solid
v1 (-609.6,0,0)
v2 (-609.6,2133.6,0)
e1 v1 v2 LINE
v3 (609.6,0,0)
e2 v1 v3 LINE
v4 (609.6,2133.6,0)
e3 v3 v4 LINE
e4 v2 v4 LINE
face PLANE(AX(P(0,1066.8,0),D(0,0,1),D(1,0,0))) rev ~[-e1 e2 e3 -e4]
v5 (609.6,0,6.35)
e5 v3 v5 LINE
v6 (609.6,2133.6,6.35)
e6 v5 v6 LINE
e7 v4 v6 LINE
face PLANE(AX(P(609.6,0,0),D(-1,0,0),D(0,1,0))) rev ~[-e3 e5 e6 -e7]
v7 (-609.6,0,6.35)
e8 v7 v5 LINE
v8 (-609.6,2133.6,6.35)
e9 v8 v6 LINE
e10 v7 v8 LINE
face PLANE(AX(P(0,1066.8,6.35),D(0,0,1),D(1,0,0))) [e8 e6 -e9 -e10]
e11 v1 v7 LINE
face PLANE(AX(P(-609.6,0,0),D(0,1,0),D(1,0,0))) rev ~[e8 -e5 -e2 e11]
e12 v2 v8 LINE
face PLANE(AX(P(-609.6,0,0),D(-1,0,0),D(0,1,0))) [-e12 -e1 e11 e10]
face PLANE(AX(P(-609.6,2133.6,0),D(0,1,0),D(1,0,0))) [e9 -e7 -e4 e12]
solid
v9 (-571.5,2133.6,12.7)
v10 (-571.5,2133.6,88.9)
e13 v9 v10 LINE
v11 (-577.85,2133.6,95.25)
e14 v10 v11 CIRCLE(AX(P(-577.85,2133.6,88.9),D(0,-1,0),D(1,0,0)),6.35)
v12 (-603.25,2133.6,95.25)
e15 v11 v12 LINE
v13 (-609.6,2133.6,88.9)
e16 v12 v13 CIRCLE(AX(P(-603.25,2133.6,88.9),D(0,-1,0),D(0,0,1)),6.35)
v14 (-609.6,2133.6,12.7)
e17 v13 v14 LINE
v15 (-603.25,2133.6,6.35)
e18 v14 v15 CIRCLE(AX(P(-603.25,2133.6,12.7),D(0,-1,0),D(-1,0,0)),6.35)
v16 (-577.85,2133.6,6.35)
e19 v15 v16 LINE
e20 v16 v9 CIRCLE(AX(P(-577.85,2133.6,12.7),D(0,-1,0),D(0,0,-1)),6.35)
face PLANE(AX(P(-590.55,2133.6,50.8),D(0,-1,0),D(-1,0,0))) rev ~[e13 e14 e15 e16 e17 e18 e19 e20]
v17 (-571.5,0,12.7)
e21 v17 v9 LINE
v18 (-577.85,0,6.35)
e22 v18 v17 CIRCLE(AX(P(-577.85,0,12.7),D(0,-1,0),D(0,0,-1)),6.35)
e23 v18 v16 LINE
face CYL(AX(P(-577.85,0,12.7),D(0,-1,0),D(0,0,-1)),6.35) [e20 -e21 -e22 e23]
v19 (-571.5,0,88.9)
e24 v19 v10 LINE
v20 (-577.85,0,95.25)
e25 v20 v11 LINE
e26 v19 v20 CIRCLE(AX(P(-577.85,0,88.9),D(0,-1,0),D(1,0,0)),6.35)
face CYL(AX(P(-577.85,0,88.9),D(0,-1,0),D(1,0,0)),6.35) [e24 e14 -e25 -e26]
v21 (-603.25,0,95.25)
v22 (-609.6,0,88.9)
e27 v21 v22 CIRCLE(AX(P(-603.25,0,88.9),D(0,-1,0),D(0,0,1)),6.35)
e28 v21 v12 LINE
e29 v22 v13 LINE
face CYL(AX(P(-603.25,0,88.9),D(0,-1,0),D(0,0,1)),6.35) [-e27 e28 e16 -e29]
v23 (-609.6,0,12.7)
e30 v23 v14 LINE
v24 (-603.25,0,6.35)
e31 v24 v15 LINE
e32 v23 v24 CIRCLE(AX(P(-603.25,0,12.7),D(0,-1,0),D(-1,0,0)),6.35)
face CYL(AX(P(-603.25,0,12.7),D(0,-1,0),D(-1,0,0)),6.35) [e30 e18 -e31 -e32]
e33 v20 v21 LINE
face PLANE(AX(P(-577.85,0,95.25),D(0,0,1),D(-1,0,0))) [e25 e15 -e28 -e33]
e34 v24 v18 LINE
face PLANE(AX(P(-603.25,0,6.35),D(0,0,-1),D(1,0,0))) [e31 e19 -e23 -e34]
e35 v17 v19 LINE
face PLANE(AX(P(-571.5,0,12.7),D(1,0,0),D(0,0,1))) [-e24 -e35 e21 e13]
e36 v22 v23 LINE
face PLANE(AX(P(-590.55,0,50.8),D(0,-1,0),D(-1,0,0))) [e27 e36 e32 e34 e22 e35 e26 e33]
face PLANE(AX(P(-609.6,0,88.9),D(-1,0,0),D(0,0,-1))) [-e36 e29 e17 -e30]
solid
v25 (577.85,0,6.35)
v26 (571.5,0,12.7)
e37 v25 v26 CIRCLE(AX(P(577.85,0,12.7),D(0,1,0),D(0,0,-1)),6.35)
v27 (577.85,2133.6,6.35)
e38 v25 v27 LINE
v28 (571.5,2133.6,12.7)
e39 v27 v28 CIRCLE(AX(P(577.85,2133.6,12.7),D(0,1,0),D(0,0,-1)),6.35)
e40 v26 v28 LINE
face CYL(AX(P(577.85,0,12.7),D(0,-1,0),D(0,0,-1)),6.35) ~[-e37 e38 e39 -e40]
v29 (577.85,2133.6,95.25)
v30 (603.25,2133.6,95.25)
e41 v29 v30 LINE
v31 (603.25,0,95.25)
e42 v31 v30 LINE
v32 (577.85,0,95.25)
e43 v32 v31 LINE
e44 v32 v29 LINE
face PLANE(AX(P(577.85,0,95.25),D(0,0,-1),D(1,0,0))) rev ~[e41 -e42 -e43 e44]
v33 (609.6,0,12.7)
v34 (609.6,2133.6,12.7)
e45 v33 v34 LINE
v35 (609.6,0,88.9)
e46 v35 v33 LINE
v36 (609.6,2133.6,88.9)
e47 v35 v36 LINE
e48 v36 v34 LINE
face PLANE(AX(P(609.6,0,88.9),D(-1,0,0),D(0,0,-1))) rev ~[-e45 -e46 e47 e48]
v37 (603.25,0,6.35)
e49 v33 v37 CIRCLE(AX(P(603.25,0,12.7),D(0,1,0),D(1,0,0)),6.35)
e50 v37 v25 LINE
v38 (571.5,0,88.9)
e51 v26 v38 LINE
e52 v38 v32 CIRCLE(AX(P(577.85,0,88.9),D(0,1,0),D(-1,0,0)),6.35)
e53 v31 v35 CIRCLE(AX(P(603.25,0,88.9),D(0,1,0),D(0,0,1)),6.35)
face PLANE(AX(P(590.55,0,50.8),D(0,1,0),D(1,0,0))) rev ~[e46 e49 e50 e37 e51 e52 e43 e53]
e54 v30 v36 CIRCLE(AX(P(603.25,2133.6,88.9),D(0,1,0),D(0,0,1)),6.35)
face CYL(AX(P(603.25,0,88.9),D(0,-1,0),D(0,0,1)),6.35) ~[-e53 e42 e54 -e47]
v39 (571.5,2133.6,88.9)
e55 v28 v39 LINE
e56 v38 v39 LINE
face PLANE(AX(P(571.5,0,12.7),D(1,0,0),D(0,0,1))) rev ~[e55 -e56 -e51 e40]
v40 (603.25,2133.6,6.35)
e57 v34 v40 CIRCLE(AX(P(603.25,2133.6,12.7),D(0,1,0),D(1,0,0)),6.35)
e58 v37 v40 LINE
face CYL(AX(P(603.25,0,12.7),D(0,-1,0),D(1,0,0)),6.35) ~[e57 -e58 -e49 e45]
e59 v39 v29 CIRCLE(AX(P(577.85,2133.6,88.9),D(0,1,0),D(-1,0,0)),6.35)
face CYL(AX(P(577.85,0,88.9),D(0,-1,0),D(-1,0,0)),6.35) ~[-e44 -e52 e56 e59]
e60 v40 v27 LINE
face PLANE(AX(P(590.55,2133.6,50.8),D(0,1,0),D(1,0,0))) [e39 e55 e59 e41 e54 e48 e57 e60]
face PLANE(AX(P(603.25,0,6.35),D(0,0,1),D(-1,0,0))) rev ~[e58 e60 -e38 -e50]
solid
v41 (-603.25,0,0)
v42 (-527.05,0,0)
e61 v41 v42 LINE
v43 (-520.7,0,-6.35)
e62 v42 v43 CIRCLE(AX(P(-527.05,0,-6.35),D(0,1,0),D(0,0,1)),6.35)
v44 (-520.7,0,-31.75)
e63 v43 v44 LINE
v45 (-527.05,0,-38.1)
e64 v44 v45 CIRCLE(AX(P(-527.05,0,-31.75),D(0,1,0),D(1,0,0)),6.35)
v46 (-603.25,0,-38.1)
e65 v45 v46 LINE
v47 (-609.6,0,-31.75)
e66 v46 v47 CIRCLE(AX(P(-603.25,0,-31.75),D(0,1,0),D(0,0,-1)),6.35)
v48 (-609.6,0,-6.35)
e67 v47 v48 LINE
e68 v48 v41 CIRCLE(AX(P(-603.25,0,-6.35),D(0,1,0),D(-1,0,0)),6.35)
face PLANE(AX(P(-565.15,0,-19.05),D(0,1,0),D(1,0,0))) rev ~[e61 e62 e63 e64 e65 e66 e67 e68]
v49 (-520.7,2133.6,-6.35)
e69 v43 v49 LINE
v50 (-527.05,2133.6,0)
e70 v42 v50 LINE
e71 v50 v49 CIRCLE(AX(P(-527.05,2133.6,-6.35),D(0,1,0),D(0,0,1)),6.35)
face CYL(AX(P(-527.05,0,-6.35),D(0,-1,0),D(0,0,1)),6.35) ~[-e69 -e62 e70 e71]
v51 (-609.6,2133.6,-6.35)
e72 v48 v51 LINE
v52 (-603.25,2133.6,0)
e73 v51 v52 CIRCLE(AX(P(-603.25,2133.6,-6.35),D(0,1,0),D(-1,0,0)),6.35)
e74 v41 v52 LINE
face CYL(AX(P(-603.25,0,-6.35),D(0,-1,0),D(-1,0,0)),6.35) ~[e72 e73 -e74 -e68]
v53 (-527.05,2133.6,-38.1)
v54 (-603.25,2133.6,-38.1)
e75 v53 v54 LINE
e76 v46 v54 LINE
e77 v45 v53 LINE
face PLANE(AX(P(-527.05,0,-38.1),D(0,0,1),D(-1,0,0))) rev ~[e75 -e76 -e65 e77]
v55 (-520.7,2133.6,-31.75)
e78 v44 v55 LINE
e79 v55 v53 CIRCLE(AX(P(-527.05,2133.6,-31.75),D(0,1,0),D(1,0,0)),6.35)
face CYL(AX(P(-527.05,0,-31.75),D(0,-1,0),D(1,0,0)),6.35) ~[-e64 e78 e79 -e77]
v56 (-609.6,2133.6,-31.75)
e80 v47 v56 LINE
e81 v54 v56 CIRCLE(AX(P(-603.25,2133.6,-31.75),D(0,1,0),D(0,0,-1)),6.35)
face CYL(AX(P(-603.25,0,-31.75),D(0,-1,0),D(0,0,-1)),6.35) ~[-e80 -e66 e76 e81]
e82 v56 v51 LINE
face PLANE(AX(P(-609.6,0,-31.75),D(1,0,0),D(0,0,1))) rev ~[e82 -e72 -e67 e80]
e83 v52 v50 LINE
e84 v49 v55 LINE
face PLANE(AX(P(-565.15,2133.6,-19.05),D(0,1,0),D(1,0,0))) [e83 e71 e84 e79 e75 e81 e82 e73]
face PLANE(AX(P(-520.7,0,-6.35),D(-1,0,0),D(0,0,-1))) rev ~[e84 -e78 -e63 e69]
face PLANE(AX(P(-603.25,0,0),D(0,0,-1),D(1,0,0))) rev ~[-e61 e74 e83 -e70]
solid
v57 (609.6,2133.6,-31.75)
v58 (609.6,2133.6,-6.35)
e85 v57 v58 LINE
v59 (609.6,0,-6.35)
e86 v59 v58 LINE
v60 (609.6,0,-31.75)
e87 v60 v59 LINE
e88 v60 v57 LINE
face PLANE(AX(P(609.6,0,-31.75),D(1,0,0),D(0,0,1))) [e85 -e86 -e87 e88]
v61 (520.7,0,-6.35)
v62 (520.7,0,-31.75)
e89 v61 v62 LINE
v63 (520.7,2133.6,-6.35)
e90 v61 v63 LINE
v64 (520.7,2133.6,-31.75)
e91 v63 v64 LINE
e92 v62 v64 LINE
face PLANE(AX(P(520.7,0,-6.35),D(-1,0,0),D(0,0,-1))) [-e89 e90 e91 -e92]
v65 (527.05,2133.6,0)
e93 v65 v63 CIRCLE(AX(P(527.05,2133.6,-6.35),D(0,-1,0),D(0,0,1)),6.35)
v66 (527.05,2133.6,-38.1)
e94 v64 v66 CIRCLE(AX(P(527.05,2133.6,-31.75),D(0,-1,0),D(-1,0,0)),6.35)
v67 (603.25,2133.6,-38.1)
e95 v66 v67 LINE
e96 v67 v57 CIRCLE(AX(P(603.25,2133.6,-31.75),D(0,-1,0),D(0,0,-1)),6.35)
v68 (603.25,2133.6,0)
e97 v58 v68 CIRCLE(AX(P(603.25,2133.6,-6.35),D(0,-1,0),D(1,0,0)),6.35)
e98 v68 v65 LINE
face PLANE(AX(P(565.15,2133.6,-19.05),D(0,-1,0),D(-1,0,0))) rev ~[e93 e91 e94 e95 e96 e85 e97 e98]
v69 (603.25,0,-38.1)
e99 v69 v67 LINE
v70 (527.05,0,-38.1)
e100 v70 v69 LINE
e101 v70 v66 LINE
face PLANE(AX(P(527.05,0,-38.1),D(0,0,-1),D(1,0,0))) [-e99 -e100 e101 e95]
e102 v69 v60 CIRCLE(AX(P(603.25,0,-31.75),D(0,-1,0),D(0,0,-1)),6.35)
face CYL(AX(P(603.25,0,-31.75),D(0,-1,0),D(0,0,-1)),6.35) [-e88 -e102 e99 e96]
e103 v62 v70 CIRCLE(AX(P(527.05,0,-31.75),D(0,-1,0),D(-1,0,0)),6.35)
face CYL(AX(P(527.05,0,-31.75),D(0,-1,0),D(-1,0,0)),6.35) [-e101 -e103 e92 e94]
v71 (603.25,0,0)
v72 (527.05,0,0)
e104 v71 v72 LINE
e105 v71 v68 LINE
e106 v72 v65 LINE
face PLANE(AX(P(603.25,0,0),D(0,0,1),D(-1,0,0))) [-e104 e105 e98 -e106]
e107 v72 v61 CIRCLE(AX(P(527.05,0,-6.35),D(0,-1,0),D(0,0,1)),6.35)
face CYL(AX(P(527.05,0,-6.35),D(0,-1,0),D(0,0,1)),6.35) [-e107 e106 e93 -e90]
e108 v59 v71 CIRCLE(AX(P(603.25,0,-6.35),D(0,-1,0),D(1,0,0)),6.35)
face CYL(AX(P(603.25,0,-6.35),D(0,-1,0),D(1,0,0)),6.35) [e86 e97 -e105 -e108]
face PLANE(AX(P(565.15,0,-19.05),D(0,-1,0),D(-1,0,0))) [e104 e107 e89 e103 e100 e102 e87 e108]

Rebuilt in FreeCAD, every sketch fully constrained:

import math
import FreeCAD as App
import Part
import Sketcher
from FreeCAD import Vector
Q = App.Units.Quantity

doc = App.newDocument("Part")
params = doc.addObject("Spreadsheet::Sheet", "Params")
for row, (alias, value) in enumerate([
    ("sketch1_width", "48 in"),
    ("sketch1_height", "84 in"),
    ("pad1_length", "0.25 in"),
    ("sketch2_width", "1 in"),
    ("sketch2_height", "3 in"),
    ("sketch2_radius", "0.25 in"),
    ("pad2_length", "84 in"),
    ("sketch3_width", "1 in"),
    ("sketch3_height", "3 in"),
    ("sketch3_radius", "0.25 in"),
    ("pad3_length", "84 in"),
    ("sketch4_width", "3 in"),
    ("sketch4_height", "1 in"),
    ("sketch4_radius", "0.25 in"),
    ("pad4_length", "84 in"),
    ("sketch5_width", "3 in"),
    ("sketch5_height", "1 in"),
    ("sketch5_radius", "0.25 in"),
    ("pad5_length", "84 in"),
], start=1):
    params.set(f"A{row}", alias)
    params.set(f"B{row}", "=" + value)
    params.setAlias(f"B{row}", alias)

body = doc.addObject("PartDesign::Body", "Body")

sketch1 = body.newObject("Sketcher::SketchObject", "Sketch")
sketch1.AttachmentSupport = (doc.getObject("XY_Plane"), [""])
sketch1.MapMode = "FlatFace"
sketch1.addGeometry(Part.LineSegment(Vector(-609.6, 2133.6, 0), Vector(-609.6, 0, 0)), False)
sketch1.addGeometry(Part.LineSegment(Vector(-609.6, 0, 0), Vector(609.6, 0, 0)), False)
sketch1.addGeometry(Part.LineSegment(Vector(609.6, 0, 0), Vector(609.6, 2133.6, 0)), False)
sketch1.addGeometry(Part.LineSegment(Vector(609.6, 2133.6, 0), Vector(-609.6, 2133.6, 0)), False)
sketch1.addConstraint(Sketcher.Constraint("Coincident", 0, 2, 1, 1))
sketch1.addConstraint(Sketcher.Constraint("Coincident", 1, 2, 2, 1))
sketch1.addConstraint(Sketcher.Constraint("Coincident", 2, 2, 3, 1))
sketch1.addConstraint(Sketcher.Constraint("Coincident", 3, 2, 0, 1))
sketch1.addConstraint(Sketcher.Constraint("Vertical", 0))
sketch1.addConstraint(Sketcher.Constraint("Horizontal", 1))
sketch1.addConstraint(Sketcher.Constraint("Vertical", 2))
sketch1.addConstraint(Sketcher.Constraint("Horizontal", 3))
sketch1.addConstraint(Sketcher.Constraint("Symmetric", 0, 2, 1, 2, -1, 1))
sketch1.addConstraint(Sketcher.Constraint("DistanceX", 1, 1, 1, 2, Q("48 in")))
sketch1.addConstraint(Sketcher.Constraint("DistanceY", 0, 2, 0, 1, Q("84 in")))
sketch1.setExpression("Constraints[9]", "Params.sketch1_width")
sketch1.setExpression("Constraints[10]", "Params.sketch1_height")
pad1 = body.newObject("PartDesign::Pad", "Pad")
pad1.Profile = sketch1
pad1.setExpression("Length", "Params.pad1_length")
body2 = doc.addObject("PartDesign::Body", "Body001")

sketch2 = body2.newObject("Sketcher::SketchObject", "Sketch001")
sketch2.AttachmentSupport = (doc.getObject("XZ_Plane001"), [""])
sketch2.MapMode = "FlatFace"
sketch2.addGeometry(Part.LineSegment(Vector(603.25, 6.35, 0), Vector(577.85, 6.35, 0)), False)
sketch2.addGeometry(Part.ArcOfCircle(Part.Circle(Vector(577.85, 12.7, 0), Vector(0, 0, 1), 6.35), math.radians(180), math.radians(270)), False)
sketch2.addGeometry(Part.LineSegment(Vector(571.5, 12.7, 0), Vector(571.5, 88.9, 0)), False)
sketch2.addGeometry(Part.ArcOfCircle(Part.Circle(Vector(577.85, 88.9, 0), Vector(0, 0, 1), 6.35), math.radians(90), math.radians(180)), False)
sketch2.addGeometry(Part.LineSegment(Vector(577.85, 95.25, 0), Vector(603.25, 95.25, 0)), False)
sketch2.addGeometry(Part.ArcOfCircle(Part.Circle(Vector(603.25, 88.9, 0), Vector(0, 0, 1), 6.35), math.radians(0), math.radians(90)), False)
sketch2.addGeometry(Part.LineSegment(Vector(609.6, 88.9, 0), Vector(609.6, 12.7, 0)), False)
sketch2.addGeometry(Part.ArcOfCircle(Part.Circle(Vector(603.25, 12.7, 0), Vector(0, 0, 1), 6.35), math.radians(-90), math.radians(0)), False)
sketch2.addConstraint(Sketcher.Constraint("Tangent", 0, 2, 1, 2))
sketch2.addConstraint(Sketcher.Constraint("Tangent", 1, 1, 2, 1))
sketch2.addConstraint(Sketcher.Constraint("Tangent", 2, 2, 3, 2))
sketch2.addConstraint(Sketcher.Constraint("Tangent", 3, 1, 4, 1))
sketch2.addConstraint(Sketcher.Constraint("Tangent", 4, 2, 5, 2))
sketch2.addConstraint(Sketcher.Constraint("Tangent", 5, 1, 6, 1))
sketch2.addConstraint(Sketcher.Constraint("Tangent", 6, 2, 7, 2))
sketch2.addConstraint(Sketcher.Constraint("Tangent", 7, 1, 0, 1))
sketch2.addConstraint(Sketcher.Constraint("Horizontal", 0))
sketch2.addConstraint(Sketcher.Constraint("Vertical", 2))
sketch2.addConstraint(Sketcher.Constraint("Horizontal", 4))
sketch2.addConstraint(Sketcher.Constraint("Vertical", 6))
sketch2.addConstraint(Sketcher.Constraint("Equal", 1, 3))
sketch2.addConstraint(Sketcher.Constraint("Equal", 3, 5))
sketch2.addConstraint(Sketcher.Constraint("Equal", 5, 7))
sketch2.addConstraint(Sketcher.Constraint("DistanceX", 0, 2, 0, 1, Q("1 in")))
sketch2.addConstraint(Sketcher.Constraint("DistanceY", 2, 1, 2, 2, Q("3 in")))
sketch2.addConstraint(Sketcher.Constraint("Radius", 1, Q("0.25 in")))
sketch2.addConstraint(Sketcher.Constraint("DistanceX", -1, 1, 5, 1, Q("24 in")))
sketch2.addConstraint(Sketcher.Constraint("DistanceY", -1, 1, 1, 3, Q("0.5 in")))
sketch2.setExpression("Constraints[15]", "Params.sketch2_width")
sketch2.setExpression("Constraints[16]", "Params.sketch2_height")
sketch2.setExpression("Constraints[17]", "Params.sketch2_radius")
pad2 = body2.newObject("PartDesign::Pad", "Pad001")
pad2.Profile = sketch2
pad2.setExpression("Length", "Params.pad2_length")
pad2.Reversed = True
body3 = doc.addObject("PartDesign::Body", "Body002")

sketch3 = body3.newObject("Sketcher::SketchObject", "Sketch002")
sketch3.AttachmentSupport = (doc.getObject("XZ_Plane002"), [""])
sketch3.MapMode = "FlatFace"
sketch3.addGeometry(Part.LineSegment(Vector(-577.85, 6.35, 0), Vector(-603.25, 6.35, 0)), False)
sketch3.addGeometry(Part.ArcOfCircle(Part.Circle(Vector(-603.25, 12.7, 0), Vector(0, 0, 1), 6.35), math.radians(180), math.radians(270)), False)
sketch3.addGeometry(Part.LineSegment(Vector(-609.6, 12.7, 0), Vector(-609.6, 88.9, 0)), False)
sketch3.addGeometry(Part.ArcOfCircle(Part.Circle(Vector(-603.25, 88.9, 0), Vector(0, 0, 1), 6.35), math.radians(90), math.radians(180)), False)
sketch3.addGeometry(Part.LineSegment(Vector(-603.25, 95.25, 0), Vector(-577.85, 95.25, 0)), False)
sketch3.addGeometry(Part.ArcOfCircle(Part.Circle(Vector(-577.85, 88.9, 0), Vector(0, 0, 1), 6.35), math.radians(0), math.radians(90)), False)
sketch3.addGeometry(Part.LineSegment(Vector(-571.5, 88.9, 0), Vector(-571.5, 12.7, 0)), False)
sketch3.addGeometry(Part.ArcOfCircle(Part.Circle(Vector(-577.85, 12.7, 0), Vector(0, 0, 1), 6.35), math.radians(-90), math.radians(0)), False)
sketch3.addConstraint(Sketcher.Constraint("Tangent", 0, 2, 1, 2))
sketch3.addConstraint(Sketcher.Constraint("Tangent", 1, 1, 2, 1))
sketch3.addConstraint(Sketcher.Constraint("Tangent", 2, 2, 3, 2))
sketch3.addConstraint(Sketcher.Constraint("Tangent", 3, 1, 4, 1))
sketch3.addConstraint(Sketcher.Constraint("Tangent", 4, 2, 5, 2))
sketch3.addConstraint(Sketcher.Constraint("Tangent", 5, 1, 6, 1))
sketch3.addConstraint(Sketcher.Constraint("Tangent", 6, 2, 7, 2))
sketch3.addConstraint(Sketcher.Constraint("Tangent", 7, 1, 0, 1))
sketch3.addConstraint(Sketcher.Constraint("Horizontal", 0))
sketch3.addConstraint(Sketcher.Constraint("Vertical", 2))
sketch3.addConstraint(Sketcher.Constraint("Horizontal", 4))
sketch3.addConstraint(Sketcher.Constraint("Vertical", 6))
sketch3.addConstraint(Sketcher.Constraint("Equal", 1, 3))
sketch3.addConstraint(Sketcher.Constraint("Equal", 3, 5))
sketch3.addConstraint(Sketcher.Constraint("Equal", 5, 7))
sketch3.addConstraint(Sketcher.Constraint("DistanceX", 0, 2, 0, 1, Q("1 in")))
sketch3.addConstraint(Sketcher.Constraint("DistanceY", 2, 1, 2, 2, Q("3 in")))
sketch3.addConstraint(Sketcher.Constraint("Radius", 1, Q("0.25 in")))
sketch3.addConstraint(Sketcher.Constraint("DistanceX", 1, 1, -1, 1, Q("24 in")))
sketch3.addConstraint(Sketcher.Constraint("DistanceY", -1, 1, 1, 3, Q("0.5 in")))
sketch3.setExpression("Constraints[15]", "Params.sketch3_width")
sketch3.setExpression("Constraints[16]", "Params.sketch3_height")
sketch3.setExpression("Constraints[17]", "Params.sketch3_radius")
pad3 = body3.newObject("PartDesign::Pad", "Pad002")
pad3.Profile = sketch3
pad3.setExpression("Length", "Params.pad3_length")
pad3.Reversed = True
body4 = doc.addObject("PartDesign::Body", "Body003")

sketch4 = body4.newObject("Sketcher::SketchObject", "Sketch003")
sketch4.AttachmentSupport = (doc.getObject("XZ_Plane003"), [""])
sketch4.MapMode = "FlatFace"
sketch4.addGeometry(Part.LineSegment(Vector(527.05, 0, 0), Vector(603.25, 0, 0)), False)
sketch4.addGeometry(Part.ArcOfCircle(Part.Circle(Vector(603.25, -6.35, 0), Vector(0, 0, 1), 6.35), math.radians(0), math.radians(90)), False)
sketch4.addGeometry(Part.LineSegment(Vector(609.6, -6.35, 0), Vector(609.6, -31.75, 0)), False)
sketch4.addGeometry(Part.ArcOfCircle(Part.Circle(Vector(603.25, -31.75, 0), Vector(0, 0, 1), 6.35), math.radians(-90), math.radians(0)), False)
sketch4.addGeometry(Part.LineSegment(Vector(603.25, -38.1, 0), Vector(527.05, -38.1, 0)), False)
sketch4.addGeometry(Part.ArcOfCircle(Part.Circle(Vector(527.05, -31.75, 0), Vector(0, 0, 1), 6.35), math.radians(180), math.radians(270)), False)
sketch4.addGeometry(Part.LineSegment(Vector(520.7, -31.75, 0), Vector(520.7, -6.35, 0)), False)
sketch4.addGeometry(Part.ArcOfCircle(Part.Circle(Vector(527.05, -6.35, 0), Vector(0, 0, 1), 6.35), math.radians(90), math.radians(180)), False)
sketch4.addConstraint(Sketcher.Constraint("Tangent", 0, 2, 1, 2))
sketch4.addConstraint(Sketcher.Constraint("Tangent", 1, 1, 2, 1))
sketch4.addConstraint(Sketcher.Constraint("Tangent", 2, 2, 3, 2))
sketch4.addConstraint(Sketcher.Constraint("Tangent", 3, 1, 4, 1))
sketch4.addConstraint(Sketcher.Constraint("Tangent", 4, 2, 5, 2))
sketch4.addConstraint(Sketcher.Constraint("Tangent", 5, 1, 6, 1))
sketch4.addConstraint(Sketcher.Constraint("Tangent", 6, 2, 7, 2))
sketch4.addConstraint(Sketcher.Constraint("Tangent", 7, 1, 0, 1))
sketch4.addConstraint(Sketcher.Constraint("Horizontal", 0))
sketch4.addConstraint(Sketcher.Constraint("Vertical", 2))
sketch4.addConstraint(Sketcher.Constraint("Horizontal", 4))
sketch4.addConstraint(Sketcher.Constraint("Vertical", 6))
sketch4.addConstraint(Sketcher.Constraint("Equal", 1, 3))
sketch4.addConstraint(Sketcher.Constraint("Equal", 3, 5))
sketch4.addConstraint(Sketcher.Constraint("Equal", 5, 7))
sketch4.addConstraint(Sketcher.Constraint("PointOnObject", 0, 2, -1))
sketch4.addConstraint(Sketcher.Constraint("DistanceX", 0, 1, 0, 2, Q("3 in")))
sketch4.addConstraint(Sketcher.Constraint("DistanceY", 2, 2, 2, 1, Q("1 in")))
sketch4.addConstraint(Sketcher.Constraint("Radius", 1, Q("0.25 in")))
sketch4.addConstraint(Sketcher.Constraint("DistanceX", -1, 1, 1, 1, Q("24 in")))
sketch4.setExpression("Constraints[16]", "Params.sketch4_width")
sketch4.setExpression("Constraints[17]", "Params.sketch4_height")
sketch4.setExpression("Constraints[18]", "Params.sketch4_radius")
pad4 = body4.newObject("PartDesign::Pad", "Pad003")
pad4.Profile = sketch4
pad4.setExpression("Length", "Params.pad4_length")
pad4.Reversed = True
body5 = doc.addObject("PartDesign::Body", "Body004")

sketch5 = body5.newObject("Sketcher::SketchObject", "Sketch004")
sketch5.AttachmentSupport = (doc.getObject("XZ_Plane004"), [""])
sketch5.MapMode = "FlatFace"
sketch5.addGeometry(Part.LineSegment(Vector(-603.25, 0, 0), Vector(-527.05, 0, 0)), False)
sketch5.addGeometry(Part.ArcOfCircle(Part.Circle(Vector(-527.05, -6.35, 0), Vector(0, 0, 1), 6.35), math.radians(0), math.radians(90)), False)
sketch5.addGeometry(Part.LineSegment(Vector(-520.7, -6.35, 0), Vector(-520.7, -31.75, 0)), False)
sketch5.addGeometry(Part.ArcOfCircle(Part.Circle(Vector(-527.05, -31.75, 0), Vector(0, 0, 1), 6.35), math.radians(-90), math.radians(0)), False)
sketch5.addGeometry(Part.LineSegment(Vector(-527.05, -38.1, 0), Vector(-603.25, -38.1, 0)), False)
sketch5.addGeometry(Part.ArcOfCircle(Part.Circle(Vector(-603.25, -31.75, 0), Vector(0, 0, 1), 6.35), math.radians(180), math.radians(270)), False)
sketch5.addGeometry(Part.LineSegment(Vector(-609.6, -31.75, 0), Vector(-609.6, -6.35, 0)), False)
sketch5.addGeometry(Part.ArcOfCircle(Part.Circle(Vector(-603.25, -6.35, 0), Vector(0, 0, 1), 6.35), math.radians(90), math.radians(180)), False)
sketch5.addConstraint(Sketcher.Constraint("Tangent", 0, 2, 1, 2))
sketch5.addConstraint(Sketcher.Constraint("Tangent", 1, 1, 2, 1))
sketch5.addConstraint(Sketcher.Constraint("Tangent", 2, 2, 3, 2))
sketch5.addConstraint(Sketcher.Constraint("Tangent", 3, 1, 4, 1))
sketch5.addConstraint(Sketcher.Constraint("Tangent", 4, 2, 5, 2))
sketch5.addConstraint(Sketcher.Constraint("Tangent", 5, 1, 6, 1))
sketch5.addConstraint(Sketcher.Constraint("Tangent", 6, 2, 7, 2))
sketch5.addConstraint(Sketcher.Constraint("Tangent", 7, 1, 0, 1))
sketch5.addConstraint(Sketcher.Constraint("Horizontal", 0))
sketch5.addConstraint(Sketcher.Constraint("Vertical", 2))
sketch5.addConstraint(Sketcher.Constraint("Horizontal", 4))
sketch5.addConstraint(Sketcher.Constraint("Vertical", 6))
sketch5.addConstraint(Sketcher.Constraint("Equal", 1, 3))
sketch5.addConstraint(Sketcher.Constraint("Equal", 3, 5))
sketch5.addConstraint(Sketcher.Constraint("Equal", 5, 7))
sketch5.addConstraint(Sketcher.Constraint("PointOnObject", 0, 2, -1))
sketch5.addConstraint(Sketcher.Constraint("DistanceX", 0, 1, 0, 2, Q("3 in")))
sketch5.addConstraint(Sketcher.Constraint("DistanceY", 2, 2, 2, 1, Q("1 in")))
sketch5.addConstraint(Sketcher.Constraint("Radius", 1, Q("0.25 in")))
sketch5.addConstraint(Sketcher.Constraint("DistanceX", 5, 1, -1, 1, Q("24 in")))
sketch5.setExpression("Constraints[16]", "Params.sketch5_width")
sketch5.setExpression("Constraints[17]", "Params.sketch5_height")
sketch5.setExpression("Constraints[18]", "Params.sketch5_radius")
pad5 = body5.newObject("PartDesign::Pad", "Pad004")
pad5.Profile = sketch5
pad5.setExpression("Length", "Params.pad5_length")
pad5.Reversed = True

doc.recompute()
